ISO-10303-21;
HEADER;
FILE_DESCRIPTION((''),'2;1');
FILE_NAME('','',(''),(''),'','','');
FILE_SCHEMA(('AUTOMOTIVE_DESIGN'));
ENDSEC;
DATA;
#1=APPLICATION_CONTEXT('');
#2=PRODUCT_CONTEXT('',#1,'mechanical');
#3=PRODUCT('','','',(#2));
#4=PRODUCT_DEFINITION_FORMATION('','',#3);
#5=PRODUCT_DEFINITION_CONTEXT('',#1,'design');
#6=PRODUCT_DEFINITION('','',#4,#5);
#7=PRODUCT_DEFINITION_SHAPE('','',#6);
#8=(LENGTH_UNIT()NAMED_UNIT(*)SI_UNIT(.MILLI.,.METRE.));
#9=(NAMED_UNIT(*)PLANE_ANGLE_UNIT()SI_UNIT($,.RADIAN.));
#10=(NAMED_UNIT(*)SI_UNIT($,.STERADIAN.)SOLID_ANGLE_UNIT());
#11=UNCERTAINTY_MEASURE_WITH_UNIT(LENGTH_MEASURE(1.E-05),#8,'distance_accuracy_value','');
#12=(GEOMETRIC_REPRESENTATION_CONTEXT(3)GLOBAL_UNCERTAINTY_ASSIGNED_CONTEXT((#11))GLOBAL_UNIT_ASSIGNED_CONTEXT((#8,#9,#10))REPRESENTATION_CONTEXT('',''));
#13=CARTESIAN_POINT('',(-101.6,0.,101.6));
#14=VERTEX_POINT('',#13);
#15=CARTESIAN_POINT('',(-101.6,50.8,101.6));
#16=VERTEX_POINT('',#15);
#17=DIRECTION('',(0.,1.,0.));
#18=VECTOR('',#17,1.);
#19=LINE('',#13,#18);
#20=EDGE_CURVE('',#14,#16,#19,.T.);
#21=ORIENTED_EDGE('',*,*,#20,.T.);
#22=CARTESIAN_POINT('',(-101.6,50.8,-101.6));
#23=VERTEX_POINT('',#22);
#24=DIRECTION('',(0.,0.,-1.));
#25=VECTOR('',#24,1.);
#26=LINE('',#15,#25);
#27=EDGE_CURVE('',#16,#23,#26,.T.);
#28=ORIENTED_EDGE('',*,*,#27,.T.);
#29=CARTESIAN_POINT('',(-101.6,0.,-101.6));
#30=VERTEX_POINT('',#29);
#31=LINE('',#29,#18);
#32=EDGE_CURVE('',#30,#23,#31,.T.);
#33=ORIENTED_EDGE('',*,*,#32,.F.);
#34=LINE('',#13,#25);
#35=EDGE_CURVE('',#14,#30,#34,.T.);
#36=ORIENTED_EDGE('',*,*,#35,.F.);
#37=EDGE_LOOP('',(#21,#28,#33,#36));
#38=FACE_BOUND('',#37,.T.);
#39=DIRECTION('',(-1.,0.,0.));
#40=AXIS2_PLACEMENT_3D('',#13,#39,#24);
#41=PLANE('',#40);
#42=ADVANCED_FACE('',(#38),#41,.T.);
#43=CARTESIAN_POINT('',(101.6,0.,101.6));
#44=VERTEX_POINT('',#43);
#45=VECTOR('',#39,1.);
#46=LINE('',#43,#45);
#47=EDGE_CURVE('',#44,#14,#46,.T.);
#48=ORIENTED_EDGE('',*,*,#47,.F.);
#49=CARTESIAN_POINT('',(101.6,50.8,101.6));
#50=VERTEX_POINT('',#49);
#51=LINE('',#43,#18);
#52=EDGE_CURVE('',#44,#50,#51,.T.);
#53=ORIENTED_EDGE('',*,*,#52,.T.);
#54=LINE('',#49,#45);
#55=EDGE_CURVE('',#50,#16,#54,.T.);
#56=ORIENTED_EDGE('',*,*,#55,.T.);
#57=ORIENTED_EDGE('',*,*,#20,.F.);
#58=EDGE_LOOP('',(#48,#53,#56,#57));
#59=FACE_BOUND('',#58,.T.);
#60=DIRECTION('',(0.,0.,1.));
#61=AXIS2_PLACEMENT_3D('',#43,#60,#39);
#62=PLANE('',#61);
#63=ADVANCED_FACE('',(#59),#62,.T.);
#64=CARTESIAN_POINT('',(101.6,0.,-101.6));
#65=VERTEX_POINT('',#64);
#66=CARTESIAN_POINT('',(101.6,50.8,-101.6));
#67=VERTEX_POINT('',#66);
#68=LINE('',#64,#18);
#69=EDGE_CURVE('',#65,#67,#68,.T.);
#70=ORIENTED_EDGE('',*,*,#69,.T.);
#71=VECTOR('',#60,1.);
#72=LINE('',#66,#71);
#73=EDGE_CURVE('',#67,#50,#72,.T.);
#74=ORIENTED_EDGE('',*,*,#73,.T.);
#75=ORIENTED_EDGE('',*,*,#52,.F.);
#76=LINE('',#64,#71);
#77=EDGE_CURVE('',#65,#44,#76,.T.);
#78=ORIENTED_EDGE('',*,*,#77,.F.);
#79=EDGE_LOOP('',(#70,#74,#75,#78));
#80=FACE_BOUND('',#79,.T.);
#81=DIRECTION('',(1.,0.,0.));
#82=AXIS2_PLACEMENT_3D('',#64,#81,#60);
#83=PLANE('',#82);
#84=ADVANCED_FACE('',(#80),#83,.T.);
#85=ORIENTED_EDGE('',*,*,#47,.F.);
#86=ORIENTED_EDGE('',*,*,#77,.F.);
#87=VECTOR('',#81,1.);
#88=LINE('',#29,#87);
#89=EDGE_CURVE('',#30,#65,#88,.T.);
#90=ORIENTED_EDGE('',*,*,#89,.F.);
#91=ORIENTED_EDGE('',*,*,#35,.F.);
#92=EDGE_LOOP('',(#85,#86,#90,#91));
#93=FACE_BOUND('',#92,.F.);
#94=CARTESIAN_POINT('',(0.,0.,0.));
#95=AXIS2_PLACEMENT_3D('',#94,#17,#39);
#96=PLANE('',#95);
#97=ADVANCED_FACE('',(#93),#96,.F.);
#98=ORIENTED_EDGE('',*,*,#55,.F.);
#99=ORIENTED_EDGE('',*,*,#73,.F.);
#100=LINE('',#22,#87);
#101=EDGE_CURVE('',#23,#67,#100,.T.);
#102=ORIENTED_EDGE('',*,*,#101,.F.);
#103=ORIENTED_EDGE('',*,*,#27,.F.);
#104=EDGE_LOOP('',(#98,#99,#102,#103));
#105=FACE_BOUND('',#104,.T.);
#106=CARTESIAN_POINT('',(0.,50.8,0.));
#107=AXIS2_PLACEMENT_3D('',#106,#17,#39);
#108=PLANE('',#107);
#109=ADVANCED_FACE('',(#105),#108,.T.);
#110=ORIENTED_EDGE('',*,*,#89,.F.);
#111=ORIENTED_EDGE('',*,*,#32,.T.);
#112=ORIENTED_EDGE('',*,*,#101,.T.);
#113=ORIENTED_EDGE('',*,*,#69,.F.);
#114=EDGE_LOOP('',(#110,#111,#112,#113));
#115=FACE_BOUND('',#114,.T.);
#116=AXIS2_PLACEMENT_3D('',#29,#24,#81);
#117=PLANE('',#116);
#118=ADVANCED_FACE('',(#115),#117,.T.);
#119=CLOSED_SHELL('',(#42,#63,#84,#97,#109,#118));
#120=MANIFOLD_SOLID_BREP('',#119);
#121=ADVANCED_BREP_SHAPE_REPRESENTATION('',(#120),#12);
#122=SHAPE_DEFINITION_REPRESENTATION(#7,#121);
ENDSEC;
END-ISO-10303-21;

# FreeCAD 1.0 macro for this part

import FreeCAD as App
import Part
import Sketcher

V = App.Vector
Q = App.Units.Quantity

doc = App.newDocument("Part")
body = doc.addObject("PartDesign::Body", "Body")

sketch1 = doc.addObject("Sketcher::SketchObject", "Sketch")
body.addObject(sketch1)
sketch1.AttachmentSupport = (doc.XZ_Plane, [""])
sketch1.MapMode = "FlatFace"
sketch1.addGeometry(Part.LineSegment(V(102, -102, 0), V(-102, -102, 0)), False)
sketch1.addGeometry(Part.LineSegment(V(-102, -102, 0), V(-102, 102, 0)), False)
sketch1.addGeometry(Part.LineSegment(V(-102, 102, 0), V(102, 102, 0)), False)
sketch1.addGeometry(Part.LineSegment(V(102, 102, 0), V(102, -102, 0)), False)
sketch1.addConstraint(Sketcher.Constraint("Coincident", 0, 2, 1, 1))
sketch1.addConstraint(Sketcher.Constraint("Coincident", 1, 2, 2, 1))
sketch1.addConstraint(Sketcher.Constraint("Coincident", 2, 2, 3, 1))
sketch1.addConstraint(Sketcher.Constraint("Coincident", 3, 2, 0, 1))
sketch1.addConstraint(Sketcher.Constraint("Horizontal", 0))
sketch1.addConstraint(Sketcher.Constraint("Vertical", 1))
sketch1.addConstraint(Sketcher.Constraint("Horizontal", 2))
sketch1.addConstraint(Sketcher.Constraint("Vertical", 3))
sketch1.addConstraint(Sketcher.Constraint("Symmetric", 0, 2, 2, 2, -1, 1))
sketch1.addConstraint(Sketcher.Constraint("Equal", 2, 1))
sketch1.addConstraint(Sketcher.Constraint("DistanceX", 0, 2, 0, 1, Q("8 in")))
pad1 = doc.addObject("PartDesign::Pad", "Pad")
body.addObject(pad1)
pad1.Profile = sketch1
pad1.Length = Q("2 in")
pad1.Reversed = True

doc.recompute()
